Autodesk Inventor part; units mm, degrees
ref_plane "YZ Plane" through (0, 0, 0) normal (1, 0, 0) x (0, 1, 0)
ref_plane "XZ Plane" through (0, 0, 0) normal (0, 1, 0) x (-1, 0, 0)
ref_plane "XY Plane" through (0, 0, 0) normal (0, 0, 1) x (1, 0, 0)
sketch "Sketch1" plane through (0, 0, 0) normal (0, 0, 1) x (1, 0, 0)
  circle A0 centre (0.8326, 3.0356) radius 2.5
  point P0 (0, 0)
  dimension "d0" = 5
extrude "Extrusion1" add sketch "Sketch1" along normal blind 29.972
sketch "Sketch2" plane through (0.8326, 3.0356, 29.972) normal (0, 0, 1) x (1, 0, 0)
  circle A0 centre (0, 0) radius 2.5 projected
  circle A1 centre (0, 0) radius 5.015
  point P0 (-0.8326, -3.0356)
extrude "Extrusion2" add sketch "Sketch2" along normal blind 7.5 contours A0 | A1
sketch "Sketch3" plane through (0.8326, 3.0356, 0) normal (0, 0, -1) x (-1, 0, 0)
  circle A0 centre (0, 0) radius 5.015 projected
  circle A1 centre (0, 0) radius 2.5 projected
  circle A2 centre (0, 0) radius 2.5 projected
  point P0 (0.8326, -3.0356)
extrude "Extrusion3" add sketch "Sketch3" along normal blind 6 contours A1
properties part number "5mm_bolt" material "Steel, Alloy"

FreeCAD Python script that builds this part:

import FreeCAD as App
import Part
import Sketcher
from FreeCAD import Vector
Q = App.Units.Quantity

doc = App.newDocument("Part")
body = doc.addObject("PartDesign::Body", "Body")

# Sketch on XY plane
sketch1 = body.newObject("Sketcher::SketchObject", "Sketch")
sketch1.AttachmentSupport = (doc.getObject("XY_Plane"), [""])
sketch1.MapMode = "FlatFace"
sketch1.addGeometry(Part.Circle(Vector(0.8, 3, 0), Vector(0, 0, 1), 2.5), False)
sketch1.addConstraint([
    Sketcher.Constraint("Diameter", 0, Q("5 mm")),
    Sketcher.Constraint("DistanceX", -1, 1, 0, 3, Q("0.8326 mm")),
    Sketcher.Constraint("DistanceY", -1, 1, 0, 3, Q("3.0356 mm")),
])
pad1 = body.newObject("PartDesign::Pad", "Pad")
pad1.Profile = sketch1
pad1.Length = 29.972

# Sketch on XY plane
sketch2 = body.newObject("Sketcher::SketchObject", "Sketch001")
sketch2.AttachmentSupport = (doc.getObject("XY_Plane"), [""])
sketch2.MapMode = "FlatFace"
sketch2.AttachmentOffset = App.Placement(Vector(0, 0, 29.972), App.Rotation())
sketch2.addGeometry(Part.Circle(Vector(1, 3, 0), Vector(0, 0, 1), 5), False)
sketch2.addConstraint([
    Sketcher.Constraint("Diameter", 0, Q("10.03 mm")),
    Sketcher.Constraint("DistanceX", -1, 1, 0, 3, Q("0.8326 mm")),
    Sketcher.Constraint("DistanceY", -1, 1, 0, 3, Q("3.0356 mm")),
])
pad2 = body.newObject("PartDesign::Pad", "Pad001")
pad2.Profile = sketch2
pad2.Length = 7.5

# Sketch on XY plane
sketch3 = body.newObject("Sketcher::SketchObject", "Sketch002")
sketch3.AttachmentSupport = (doc.getObject("XY_Plane"), [""])
sketch3.MapMode = "FlatFace"
sketch3.addGeometry(Part.Circle(Vector(0.8, 3, 0), Vector(0, 0, 1), 2.5), False)
sketch3.addConstraint([
    Sketcher.Constraint("Diameter", 0, Q("5 mm")),
    Sketcher.Constraint("DistanceX", -1, 1, 0, 3, Q("0.8326 mm")),
    Sketcher.Constraint("DistanceY", -1, 1, 0, 3, Q("3.0356 mm")),
])
pad3 = body.newObject("PartDesign::Pad", "Pad002")
pad3.Profile = sketch3
pad3.Length = 6
pad3.Reversed = True

doc.recompute()
